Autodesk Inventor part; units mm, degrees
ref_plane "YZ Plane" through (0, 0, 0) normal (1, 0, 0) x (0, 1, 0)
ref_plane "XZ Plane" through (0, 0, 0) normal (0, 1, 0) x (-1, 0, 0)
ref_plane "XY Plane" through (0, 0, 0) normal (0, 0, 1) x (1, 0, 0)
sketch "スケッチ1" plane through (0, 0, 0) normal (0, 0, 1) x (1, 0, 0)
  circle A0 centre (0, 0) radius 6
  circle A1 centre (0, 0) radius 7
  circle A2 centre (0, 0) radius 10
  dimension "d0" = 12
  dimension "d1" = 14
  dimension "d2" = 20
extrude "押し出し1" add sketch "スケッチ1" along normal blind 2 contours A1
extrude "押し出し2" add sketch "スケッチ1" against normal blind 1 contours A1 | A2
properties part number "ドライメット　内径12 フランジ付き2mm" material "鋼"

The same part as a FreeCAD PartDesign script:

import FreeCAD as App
import Part
import Sketcher

V = App.Vector

doc = App.newDocument("Part")
body = doc.addObject("PartDesign::Body", "Body")

sketch1 = body.newObject("Sketcher::SketchObject", "Sketch")
sketch1.AttachmentSupport = (doc.getObject("XY_Plane"), [""])
sketch1.MapMode = "FlatFace"
sketch1.addGeometry([
    Part.Circle(V(0, 0, 0), V(0, 0, 1), 7),
    Part.Circle(V(0, 0, 0), V(0, 0, 1), 6),
], False)
sketch1.addConstraint([
    Sketcher.Constraint("Coincident", 0, 3, -1, 1),
    Sketcher.Constraint("Coincident", 1, 3, -1, 1),
    Sketcher.Constraint("Diameter", 0, 14.0),
    Sketcher.Constraint("Diameter", 1, 12.0),
])
pad1 = body.newObject("PartDesign::Pad", "Pad")
pad1.Profile = sketch1
pad1.Length = 2

sketch2 = body.newObject("Sketcher::SketchObject", "Sketch001")
sketch2.AttachmentSupport = (doc.getObject("XY_Plane"), [""])
sketch2.MapMode = "FlatFace"
sketch2.addGeometry([
    Part.Circle(V(0, 0, 0), V(0, 0, 1), 10),
    Part.Circle(V(0, 0, 0), V(0, 0, 1), 6),
], False)
sketch2.addConstraint([
    Sketcher.Constraint("Coincident", 0, 3, -1, 1),
    Sketcher.Constraint("Coincident", 1, 3, -1, 1),
    Sketcher.Constraint("Diameter", 0, 20.0),
    Sketcher.Constraint("Diameter", 1, 12.0),
])
pad2 = body.newObject("PartDesign::Pad", "Pad001")
pad2.Profile = sketch2
pad2.Length = 1
pad2.Reversed = True

doc.recompute()
